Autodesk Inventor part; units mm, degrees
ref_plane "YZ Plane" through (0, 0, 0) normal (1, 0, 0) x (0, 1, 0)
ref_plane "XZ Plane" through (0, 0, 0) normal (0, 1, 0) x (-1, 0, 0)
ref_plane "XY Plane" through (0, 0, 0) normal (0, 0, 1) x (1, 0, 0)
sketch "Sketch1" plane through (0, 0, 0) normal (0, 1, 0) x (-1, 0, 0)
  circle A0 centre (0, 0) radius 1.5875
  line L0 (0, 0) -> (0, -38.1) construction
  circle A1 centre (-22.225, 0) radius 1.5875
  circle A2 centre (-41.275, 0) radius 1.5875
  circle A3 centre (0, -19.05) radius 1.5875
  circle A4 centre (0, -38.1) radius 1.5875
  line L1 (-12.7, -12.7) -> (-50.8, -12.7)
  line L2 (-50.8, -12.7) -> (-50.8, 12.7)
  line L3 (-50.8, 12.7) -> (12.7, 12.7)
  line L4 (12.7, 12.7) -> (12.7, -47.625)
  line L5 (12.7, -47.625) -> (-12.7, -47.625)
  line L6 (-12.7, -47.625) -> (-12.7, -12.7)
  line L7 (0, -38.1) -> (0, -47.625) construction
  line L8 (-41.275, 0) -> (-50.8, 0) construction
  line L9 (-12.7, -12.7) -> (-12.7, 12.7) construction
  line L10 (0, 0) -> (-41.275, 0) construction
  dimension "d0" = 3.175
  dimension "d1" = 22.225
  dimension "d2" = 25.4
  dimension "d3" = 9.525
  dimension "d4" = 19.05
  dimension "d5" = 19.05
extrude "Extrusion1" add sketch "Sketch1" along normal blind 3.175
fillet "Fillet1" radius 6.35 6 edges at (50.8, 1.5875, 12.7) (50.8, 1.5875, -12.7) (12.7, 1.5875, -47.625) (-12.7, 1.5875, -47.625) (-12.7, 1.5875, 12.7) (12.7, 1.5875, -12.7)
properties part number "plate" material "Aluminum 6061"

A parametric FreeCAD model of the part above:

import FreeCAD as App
import Part
import Sketcher
from FreeCAD import Vector
Q = App.Units.Quantity


def edges_at(feature, points):
    """Names of the edges that pass closest to the given points."""
    edges = feature.Shape.Edges
    near = lambda p: min(range(len(edges)), key=lambda i: edges[i].distToShape(Part.Vertex(*p))[0])
    return sorted({f"Edge{near(p) + 1}" for p in points})

doc = App.newDocument("Part")
body = doc.addObject("PartDesign::Body", "Body")

# Sketch on XZ plane
sketch1 = body.newObject("Sketcher::SketchObject", "Sketch")
sketch1.AttachmentSupport = (doc.getObject("XZ_Plane"), [""])
sketch1.MapMode = "FlatFace"
sketch1.addGeometry([
    Part.LineSegment(Vector(50.8, -12.7, 0), Vector(12.7, -12.7, 0)),  # 0
    Part.LineSegment(Vector(12.7, -12.7, 0), Vector(12.7, -47.6, 0)),  # 1
    Part.LineSegment(Vector(12.7, -47.6, 0), Vector(-12.7, -47.6, 0)),  # 2
    Part.LineSegment(Vector(-12.7, -47.6, 0), Vector(-12.7, 12.7, 0)),  # 3
    Part.LineSegment(Vector(-12.7, 12.7, 0), Vector(50.8, 12.7, 0)),  # 4
    Part.LineSegment(Vector(50.8, 12.7, 0), Vector(50.8, -12.7, 0)),  # 5
    Part.Circle(Vector(0, -38.1, 0), Vector(0, 0, 1), 1.6),  # 6
    Part.Circle(Vector(0, -19.1, 0), Vector(0, 0, 1), 1.6),  # 7
    Part.Circle(Vector(41.3, 0, 0), Vector(0, 0, 1), 1.6),  # 8
    Part.Circle(Vector(22.2, 0, 0), Vector(0, 0, 1), 1.6),  # 9
    Part.Circle(Vector(0, 0, 0), Vector(0, 0, 1), 1.6),  # 10
], False)
sketch1.addConstraint([
    Sketcher.Constraint("Coincident", 0, 2, 1, 1),
    Sketcher.Constraint("Coincident", 1, 2, 2, 1),
    Sketcher.Constraint("Coincident", 2, 2, 3, 1),
    Sketcher.Constraint("Coincident", 3, 2, 4, 1),
    Sketcher.Constraint("Coincident", 4, 2, 5, 1),
    Sketcher.Constraint("Coincident", 5, 2, 0, 1),
    Sketcher.Constraint("Horizontal", 0),
    Sketcher.Constraint("Vertical", 1),
    Sketcher.Constraint("Horizontal", 2),
    Sketcher.Constraint("Vertical", 3),
    Sketcher.Constraint("Horizontal", 4),
    Sketcher.Constraint("Vertical", 5),
    Sketcher.Constraint("Coincident", 10, 3, -1, 1),
    Sketcher.Constraint("Equal", 6, 7),
    Sketcher.Constraint("Equal", 7, 8),
    Sketcher.Constraint("Equal", 8, 9),
    Sketcher.Constraint("Equal", 9, 10),
    Sketcher.Constraint("Symmetric", 0, 2, 3, 2, -1, 1),
    Sketcher.Constraint("PointOnObject", 6, 3, -2),
    Sketcher.Constraint("PointOnObject", 7, 3, -2),
    Sketcher.Constraint("PointOnObject", 8, 3, -1),
    Sketcher.Constraint("PointOnObject", 9, 3, -1),
    Sketcher.Constraint("Equal", 2, 5),
    Sketcher.Constraint("DistanceX", 2, 2, 2, 1, Q("1 in")),
    Sketcher.Constraint("Diameter", 6, Q("0.125 in")),
    Sketcher.Constraint("DistanceY", 6, 3, 0, 2, Q("1 in")),
    Sketcher.Constraint("DistanceY", 7, 3, -1, 1, Q("0.75 in")),
    Sketcher.Constraint("DistanceX", 9, 3, 8, 3, Q("0.75 in")),
    Sketcher.Constraint("DistanceX", 0, 2, 0, 1, Q("1.5 in")),
    Sketcher.Constraint("DistanceX", -1, 1, 9, 3, Q("0.875 in")),
    Sketcher.Constraint("DistanceY", 1, 2, 6, 3, Q("0.375 in")),
])
pad1 = body.newObject("PartDesign::Pad", "Pad")
pad1.Profile = sketch1
pad1.Length = Q("0.125 in")
pad1.Reversed = True
doc.recompute()

fillet = body.newObject("PartDesign::Fillet", "Fillet")
fillet.Base = (pad1, edges_at(pad1, [
    (50.8, 1.587, 12.7),
    (50.8, 1.587, -12.7),
    (12.7, 1.587, -47.625),
    (-12.7, 1.587, -47.625),
    (-12.7, 1.587, 12.7),
    (12.7, 1.587, -12.7),
]))
fillet.Radius = Q("0.25 in")

doc.recompute()
